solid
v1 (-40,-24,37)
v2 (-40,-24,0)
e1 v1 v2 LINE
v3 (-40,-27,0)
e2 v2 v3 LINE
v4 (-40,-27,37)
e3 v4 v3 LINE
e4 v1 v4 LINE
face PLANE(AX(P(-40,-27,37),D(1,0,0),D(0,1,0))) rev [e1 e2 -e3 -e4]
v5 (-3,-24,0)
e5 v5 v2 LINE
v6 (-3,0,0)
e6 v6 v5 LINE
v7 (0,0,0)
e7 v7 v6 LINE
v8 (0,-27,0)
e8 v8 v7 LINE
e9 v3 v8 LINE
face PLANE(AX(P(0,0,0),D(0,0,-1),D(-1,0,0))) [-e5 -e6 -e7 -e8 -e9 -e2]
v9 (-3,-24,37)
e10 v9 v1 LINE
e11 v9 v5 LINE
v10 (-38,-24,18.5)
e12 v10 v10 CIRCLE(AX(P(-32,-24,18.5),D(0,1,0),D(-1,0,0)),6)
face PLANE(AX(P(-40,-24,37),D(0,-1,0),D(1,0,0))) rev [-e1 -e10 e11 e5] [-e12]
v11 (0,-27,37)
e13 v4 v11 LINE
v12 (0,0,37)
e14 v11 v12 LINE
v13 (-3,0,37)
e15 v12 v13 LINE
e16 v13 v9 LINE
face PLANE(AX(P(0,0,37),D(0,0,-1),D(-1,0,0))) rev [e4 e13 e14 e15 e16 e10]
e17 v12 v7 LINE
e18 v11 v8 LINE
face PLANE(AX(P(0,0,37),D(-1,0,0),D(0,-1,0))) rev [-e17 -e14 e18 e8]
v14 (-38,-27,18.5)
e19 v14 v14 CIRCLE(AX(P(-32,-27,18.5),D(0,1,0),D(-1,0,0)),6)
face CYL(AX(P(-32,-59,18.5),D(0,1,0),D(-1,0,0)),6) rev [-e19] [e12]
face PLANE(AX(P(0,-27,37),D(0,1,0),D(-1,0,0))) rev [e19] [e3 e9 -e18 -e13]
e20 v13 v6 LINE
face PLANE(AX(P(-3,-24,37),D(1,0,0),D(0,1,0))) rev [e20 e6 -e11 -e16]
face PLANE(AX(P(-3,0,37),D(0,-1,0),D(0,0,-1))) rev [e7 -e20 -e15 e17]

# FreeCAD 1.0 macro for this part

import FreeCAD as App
import Part
import Sketcher

V = App.Vector
Q = App.Units.Quantity

doc = App.newDocument("Part")
params = doc.addObject("Spreadsheet::Sheet", "Params")
for row, (alias, value) in enumerate([
    ("sketch1_width", "3 mm"),
    ("sketch1_width2", "37 mm"),
    ("sketch1_height", "27 mm"),
    ("pad1_length", "37 mm"),
    ("sketch2_diameter", "12 mm"),
    ("pocket1_length", "35 mm"),
], start=1):
    params.set(f"A{row}", alias)
    params.set(f"B{row}", "=" + value)
    params.setAlias(f"B{row}", alias)

body = doc.addObject("PartDesign::Body", "Body")

sketch1 = body.newObject("Sketcher::SketchObject", "Sketch")
sketch1.AttachmentSupport = (doc.getObject("XY_Plane"), [""])
sketch1.MapMode = "FlatFace"
sketch1.addGeometry(Part.LineSegment(V(0, -27, 0), V(0, 0, 0)), False)
sketch1.addGeometry(Part.LineSegment(V(0, 0, 0), V(-3, 0, 0)), False)
sketch1.addGeometry(Part.LineSegment(V(-3, 0, 0), V(-3, -24, 0)), False)
sketch1.addGeometry(Part.LineSegment(V(-3, -24, 0), V(-40, -24, 0)), False)
sketch1.addGeometry(Part.LineSegment(V(-40, -24, 0), V(-40, -27, 0)), False)
sketch1.addGeometry(Part.LineSegment(V(-40, -27, 0), V(0, -27, 0)), False)
sketch1.addConstraint(Sketcher.Constraint("Coincident", 0, 2, 1, 1))
sketch1.addConstraint(Sketcher.Constraint("Coincident", 1, 2, 2, 1))
sketch1.addConstraint(Sketcher.Constraint("Coincident", 2, 2, 3, 1))
sketch1.addConstraint(Sketcher.Constraint("Coincident", 3, 2, 4, 1))
sketch1.addConstraint(Sketcher.Constraint("Coincident", 4, 2, 5, 1))
sketch1.addConstraint(Sketcher.Constraint("Coincident", 5, 2, 0, 1))
sketch1.addConstraint(Sketcher.Constraint("Vertical", 0))
sketch1.addConstraint(Sketcher.Constraint("Horizontal", 1))
sketch1.addConstraint(Sketcher.Constraint("Vertical", 2))
sketch1.addConstraint(Sketcher.Constraint("Horizontal", 3))
sketch1.addConstraint(Sketcher.Constraint("Vertical", 4))
sketch1.addConstraint(Sketcher.Constraint("Horizontal", 5))
sketch1.addConstraint(Sketcher.Constraint("Coincident", 0, 2, -1, 1))
sketch1.addConstraint(Sketcher.Constraint("Equal", 1, 4))
sketch1.addConstraint(Sketcher.Constraint("DistanceX", 1, 2, 1, 1, Q("3 mm")))
sketch1.addConstraint(Sketcher.Constraint("DistanceX", 3, 2, 3, 1, Q("37 mm")))
sketch1.addConstraint(Sketcher.Constraint("DistanceY", 0, 1, 0, 2, Q("27 mm")))
sketch1.setExpression("Constraints[14]", "Params.sketch1_width")
sketch1.setExpression("Constraints[15]", "Params.sketch1_width2")
sketch1.setExpression("Constraints[16]", "Params.sketch1_height")
pad1 = body.newObject("PartDesign::Pad", "Pad")
pad1.Profile = sketch1
pad1.setExpression("Length", "Params.pad1_length")

sketch2 = body.newObject("Sketcher::SketchObject", "Sketch001")
sketch2.AttachmentSupport = (doc.getObject("XZ_Plane"), [""])
sketch2.MapMode = "FlatFace"
sketch2.AttachmentOffset = App.Placement(V(0, 0, 24), App.Rotation())
sketch2.addGeometry(Part.Circle(V(-32, 18.5, 0), V(0, 0, 1), 6), False)
sketch2.addConstraint(Sketcher.Constraint("Diameter", 0, Q("12 mm")))
sketch2.addConstraint(Sketcher.Constraint("DistanceX", 0, 3, -1, 1, Q("32 mm")))
sketch2.addConstraint(Sketcher.Constraint("DistanceY", -1, 1, 0, 3, Q("18.5 mm")))
sketch2.setExpression("Constraints[0]", "Params.sketch2_diameter")
pocket1 = body.newObject("PartDesign::Pocket", "Pocket")
pocket1.Profile = sketch2
pocket1.setExpression("Length", "Params.pocket1_length")
pocket1.Reversed = True

doc.recompute()
